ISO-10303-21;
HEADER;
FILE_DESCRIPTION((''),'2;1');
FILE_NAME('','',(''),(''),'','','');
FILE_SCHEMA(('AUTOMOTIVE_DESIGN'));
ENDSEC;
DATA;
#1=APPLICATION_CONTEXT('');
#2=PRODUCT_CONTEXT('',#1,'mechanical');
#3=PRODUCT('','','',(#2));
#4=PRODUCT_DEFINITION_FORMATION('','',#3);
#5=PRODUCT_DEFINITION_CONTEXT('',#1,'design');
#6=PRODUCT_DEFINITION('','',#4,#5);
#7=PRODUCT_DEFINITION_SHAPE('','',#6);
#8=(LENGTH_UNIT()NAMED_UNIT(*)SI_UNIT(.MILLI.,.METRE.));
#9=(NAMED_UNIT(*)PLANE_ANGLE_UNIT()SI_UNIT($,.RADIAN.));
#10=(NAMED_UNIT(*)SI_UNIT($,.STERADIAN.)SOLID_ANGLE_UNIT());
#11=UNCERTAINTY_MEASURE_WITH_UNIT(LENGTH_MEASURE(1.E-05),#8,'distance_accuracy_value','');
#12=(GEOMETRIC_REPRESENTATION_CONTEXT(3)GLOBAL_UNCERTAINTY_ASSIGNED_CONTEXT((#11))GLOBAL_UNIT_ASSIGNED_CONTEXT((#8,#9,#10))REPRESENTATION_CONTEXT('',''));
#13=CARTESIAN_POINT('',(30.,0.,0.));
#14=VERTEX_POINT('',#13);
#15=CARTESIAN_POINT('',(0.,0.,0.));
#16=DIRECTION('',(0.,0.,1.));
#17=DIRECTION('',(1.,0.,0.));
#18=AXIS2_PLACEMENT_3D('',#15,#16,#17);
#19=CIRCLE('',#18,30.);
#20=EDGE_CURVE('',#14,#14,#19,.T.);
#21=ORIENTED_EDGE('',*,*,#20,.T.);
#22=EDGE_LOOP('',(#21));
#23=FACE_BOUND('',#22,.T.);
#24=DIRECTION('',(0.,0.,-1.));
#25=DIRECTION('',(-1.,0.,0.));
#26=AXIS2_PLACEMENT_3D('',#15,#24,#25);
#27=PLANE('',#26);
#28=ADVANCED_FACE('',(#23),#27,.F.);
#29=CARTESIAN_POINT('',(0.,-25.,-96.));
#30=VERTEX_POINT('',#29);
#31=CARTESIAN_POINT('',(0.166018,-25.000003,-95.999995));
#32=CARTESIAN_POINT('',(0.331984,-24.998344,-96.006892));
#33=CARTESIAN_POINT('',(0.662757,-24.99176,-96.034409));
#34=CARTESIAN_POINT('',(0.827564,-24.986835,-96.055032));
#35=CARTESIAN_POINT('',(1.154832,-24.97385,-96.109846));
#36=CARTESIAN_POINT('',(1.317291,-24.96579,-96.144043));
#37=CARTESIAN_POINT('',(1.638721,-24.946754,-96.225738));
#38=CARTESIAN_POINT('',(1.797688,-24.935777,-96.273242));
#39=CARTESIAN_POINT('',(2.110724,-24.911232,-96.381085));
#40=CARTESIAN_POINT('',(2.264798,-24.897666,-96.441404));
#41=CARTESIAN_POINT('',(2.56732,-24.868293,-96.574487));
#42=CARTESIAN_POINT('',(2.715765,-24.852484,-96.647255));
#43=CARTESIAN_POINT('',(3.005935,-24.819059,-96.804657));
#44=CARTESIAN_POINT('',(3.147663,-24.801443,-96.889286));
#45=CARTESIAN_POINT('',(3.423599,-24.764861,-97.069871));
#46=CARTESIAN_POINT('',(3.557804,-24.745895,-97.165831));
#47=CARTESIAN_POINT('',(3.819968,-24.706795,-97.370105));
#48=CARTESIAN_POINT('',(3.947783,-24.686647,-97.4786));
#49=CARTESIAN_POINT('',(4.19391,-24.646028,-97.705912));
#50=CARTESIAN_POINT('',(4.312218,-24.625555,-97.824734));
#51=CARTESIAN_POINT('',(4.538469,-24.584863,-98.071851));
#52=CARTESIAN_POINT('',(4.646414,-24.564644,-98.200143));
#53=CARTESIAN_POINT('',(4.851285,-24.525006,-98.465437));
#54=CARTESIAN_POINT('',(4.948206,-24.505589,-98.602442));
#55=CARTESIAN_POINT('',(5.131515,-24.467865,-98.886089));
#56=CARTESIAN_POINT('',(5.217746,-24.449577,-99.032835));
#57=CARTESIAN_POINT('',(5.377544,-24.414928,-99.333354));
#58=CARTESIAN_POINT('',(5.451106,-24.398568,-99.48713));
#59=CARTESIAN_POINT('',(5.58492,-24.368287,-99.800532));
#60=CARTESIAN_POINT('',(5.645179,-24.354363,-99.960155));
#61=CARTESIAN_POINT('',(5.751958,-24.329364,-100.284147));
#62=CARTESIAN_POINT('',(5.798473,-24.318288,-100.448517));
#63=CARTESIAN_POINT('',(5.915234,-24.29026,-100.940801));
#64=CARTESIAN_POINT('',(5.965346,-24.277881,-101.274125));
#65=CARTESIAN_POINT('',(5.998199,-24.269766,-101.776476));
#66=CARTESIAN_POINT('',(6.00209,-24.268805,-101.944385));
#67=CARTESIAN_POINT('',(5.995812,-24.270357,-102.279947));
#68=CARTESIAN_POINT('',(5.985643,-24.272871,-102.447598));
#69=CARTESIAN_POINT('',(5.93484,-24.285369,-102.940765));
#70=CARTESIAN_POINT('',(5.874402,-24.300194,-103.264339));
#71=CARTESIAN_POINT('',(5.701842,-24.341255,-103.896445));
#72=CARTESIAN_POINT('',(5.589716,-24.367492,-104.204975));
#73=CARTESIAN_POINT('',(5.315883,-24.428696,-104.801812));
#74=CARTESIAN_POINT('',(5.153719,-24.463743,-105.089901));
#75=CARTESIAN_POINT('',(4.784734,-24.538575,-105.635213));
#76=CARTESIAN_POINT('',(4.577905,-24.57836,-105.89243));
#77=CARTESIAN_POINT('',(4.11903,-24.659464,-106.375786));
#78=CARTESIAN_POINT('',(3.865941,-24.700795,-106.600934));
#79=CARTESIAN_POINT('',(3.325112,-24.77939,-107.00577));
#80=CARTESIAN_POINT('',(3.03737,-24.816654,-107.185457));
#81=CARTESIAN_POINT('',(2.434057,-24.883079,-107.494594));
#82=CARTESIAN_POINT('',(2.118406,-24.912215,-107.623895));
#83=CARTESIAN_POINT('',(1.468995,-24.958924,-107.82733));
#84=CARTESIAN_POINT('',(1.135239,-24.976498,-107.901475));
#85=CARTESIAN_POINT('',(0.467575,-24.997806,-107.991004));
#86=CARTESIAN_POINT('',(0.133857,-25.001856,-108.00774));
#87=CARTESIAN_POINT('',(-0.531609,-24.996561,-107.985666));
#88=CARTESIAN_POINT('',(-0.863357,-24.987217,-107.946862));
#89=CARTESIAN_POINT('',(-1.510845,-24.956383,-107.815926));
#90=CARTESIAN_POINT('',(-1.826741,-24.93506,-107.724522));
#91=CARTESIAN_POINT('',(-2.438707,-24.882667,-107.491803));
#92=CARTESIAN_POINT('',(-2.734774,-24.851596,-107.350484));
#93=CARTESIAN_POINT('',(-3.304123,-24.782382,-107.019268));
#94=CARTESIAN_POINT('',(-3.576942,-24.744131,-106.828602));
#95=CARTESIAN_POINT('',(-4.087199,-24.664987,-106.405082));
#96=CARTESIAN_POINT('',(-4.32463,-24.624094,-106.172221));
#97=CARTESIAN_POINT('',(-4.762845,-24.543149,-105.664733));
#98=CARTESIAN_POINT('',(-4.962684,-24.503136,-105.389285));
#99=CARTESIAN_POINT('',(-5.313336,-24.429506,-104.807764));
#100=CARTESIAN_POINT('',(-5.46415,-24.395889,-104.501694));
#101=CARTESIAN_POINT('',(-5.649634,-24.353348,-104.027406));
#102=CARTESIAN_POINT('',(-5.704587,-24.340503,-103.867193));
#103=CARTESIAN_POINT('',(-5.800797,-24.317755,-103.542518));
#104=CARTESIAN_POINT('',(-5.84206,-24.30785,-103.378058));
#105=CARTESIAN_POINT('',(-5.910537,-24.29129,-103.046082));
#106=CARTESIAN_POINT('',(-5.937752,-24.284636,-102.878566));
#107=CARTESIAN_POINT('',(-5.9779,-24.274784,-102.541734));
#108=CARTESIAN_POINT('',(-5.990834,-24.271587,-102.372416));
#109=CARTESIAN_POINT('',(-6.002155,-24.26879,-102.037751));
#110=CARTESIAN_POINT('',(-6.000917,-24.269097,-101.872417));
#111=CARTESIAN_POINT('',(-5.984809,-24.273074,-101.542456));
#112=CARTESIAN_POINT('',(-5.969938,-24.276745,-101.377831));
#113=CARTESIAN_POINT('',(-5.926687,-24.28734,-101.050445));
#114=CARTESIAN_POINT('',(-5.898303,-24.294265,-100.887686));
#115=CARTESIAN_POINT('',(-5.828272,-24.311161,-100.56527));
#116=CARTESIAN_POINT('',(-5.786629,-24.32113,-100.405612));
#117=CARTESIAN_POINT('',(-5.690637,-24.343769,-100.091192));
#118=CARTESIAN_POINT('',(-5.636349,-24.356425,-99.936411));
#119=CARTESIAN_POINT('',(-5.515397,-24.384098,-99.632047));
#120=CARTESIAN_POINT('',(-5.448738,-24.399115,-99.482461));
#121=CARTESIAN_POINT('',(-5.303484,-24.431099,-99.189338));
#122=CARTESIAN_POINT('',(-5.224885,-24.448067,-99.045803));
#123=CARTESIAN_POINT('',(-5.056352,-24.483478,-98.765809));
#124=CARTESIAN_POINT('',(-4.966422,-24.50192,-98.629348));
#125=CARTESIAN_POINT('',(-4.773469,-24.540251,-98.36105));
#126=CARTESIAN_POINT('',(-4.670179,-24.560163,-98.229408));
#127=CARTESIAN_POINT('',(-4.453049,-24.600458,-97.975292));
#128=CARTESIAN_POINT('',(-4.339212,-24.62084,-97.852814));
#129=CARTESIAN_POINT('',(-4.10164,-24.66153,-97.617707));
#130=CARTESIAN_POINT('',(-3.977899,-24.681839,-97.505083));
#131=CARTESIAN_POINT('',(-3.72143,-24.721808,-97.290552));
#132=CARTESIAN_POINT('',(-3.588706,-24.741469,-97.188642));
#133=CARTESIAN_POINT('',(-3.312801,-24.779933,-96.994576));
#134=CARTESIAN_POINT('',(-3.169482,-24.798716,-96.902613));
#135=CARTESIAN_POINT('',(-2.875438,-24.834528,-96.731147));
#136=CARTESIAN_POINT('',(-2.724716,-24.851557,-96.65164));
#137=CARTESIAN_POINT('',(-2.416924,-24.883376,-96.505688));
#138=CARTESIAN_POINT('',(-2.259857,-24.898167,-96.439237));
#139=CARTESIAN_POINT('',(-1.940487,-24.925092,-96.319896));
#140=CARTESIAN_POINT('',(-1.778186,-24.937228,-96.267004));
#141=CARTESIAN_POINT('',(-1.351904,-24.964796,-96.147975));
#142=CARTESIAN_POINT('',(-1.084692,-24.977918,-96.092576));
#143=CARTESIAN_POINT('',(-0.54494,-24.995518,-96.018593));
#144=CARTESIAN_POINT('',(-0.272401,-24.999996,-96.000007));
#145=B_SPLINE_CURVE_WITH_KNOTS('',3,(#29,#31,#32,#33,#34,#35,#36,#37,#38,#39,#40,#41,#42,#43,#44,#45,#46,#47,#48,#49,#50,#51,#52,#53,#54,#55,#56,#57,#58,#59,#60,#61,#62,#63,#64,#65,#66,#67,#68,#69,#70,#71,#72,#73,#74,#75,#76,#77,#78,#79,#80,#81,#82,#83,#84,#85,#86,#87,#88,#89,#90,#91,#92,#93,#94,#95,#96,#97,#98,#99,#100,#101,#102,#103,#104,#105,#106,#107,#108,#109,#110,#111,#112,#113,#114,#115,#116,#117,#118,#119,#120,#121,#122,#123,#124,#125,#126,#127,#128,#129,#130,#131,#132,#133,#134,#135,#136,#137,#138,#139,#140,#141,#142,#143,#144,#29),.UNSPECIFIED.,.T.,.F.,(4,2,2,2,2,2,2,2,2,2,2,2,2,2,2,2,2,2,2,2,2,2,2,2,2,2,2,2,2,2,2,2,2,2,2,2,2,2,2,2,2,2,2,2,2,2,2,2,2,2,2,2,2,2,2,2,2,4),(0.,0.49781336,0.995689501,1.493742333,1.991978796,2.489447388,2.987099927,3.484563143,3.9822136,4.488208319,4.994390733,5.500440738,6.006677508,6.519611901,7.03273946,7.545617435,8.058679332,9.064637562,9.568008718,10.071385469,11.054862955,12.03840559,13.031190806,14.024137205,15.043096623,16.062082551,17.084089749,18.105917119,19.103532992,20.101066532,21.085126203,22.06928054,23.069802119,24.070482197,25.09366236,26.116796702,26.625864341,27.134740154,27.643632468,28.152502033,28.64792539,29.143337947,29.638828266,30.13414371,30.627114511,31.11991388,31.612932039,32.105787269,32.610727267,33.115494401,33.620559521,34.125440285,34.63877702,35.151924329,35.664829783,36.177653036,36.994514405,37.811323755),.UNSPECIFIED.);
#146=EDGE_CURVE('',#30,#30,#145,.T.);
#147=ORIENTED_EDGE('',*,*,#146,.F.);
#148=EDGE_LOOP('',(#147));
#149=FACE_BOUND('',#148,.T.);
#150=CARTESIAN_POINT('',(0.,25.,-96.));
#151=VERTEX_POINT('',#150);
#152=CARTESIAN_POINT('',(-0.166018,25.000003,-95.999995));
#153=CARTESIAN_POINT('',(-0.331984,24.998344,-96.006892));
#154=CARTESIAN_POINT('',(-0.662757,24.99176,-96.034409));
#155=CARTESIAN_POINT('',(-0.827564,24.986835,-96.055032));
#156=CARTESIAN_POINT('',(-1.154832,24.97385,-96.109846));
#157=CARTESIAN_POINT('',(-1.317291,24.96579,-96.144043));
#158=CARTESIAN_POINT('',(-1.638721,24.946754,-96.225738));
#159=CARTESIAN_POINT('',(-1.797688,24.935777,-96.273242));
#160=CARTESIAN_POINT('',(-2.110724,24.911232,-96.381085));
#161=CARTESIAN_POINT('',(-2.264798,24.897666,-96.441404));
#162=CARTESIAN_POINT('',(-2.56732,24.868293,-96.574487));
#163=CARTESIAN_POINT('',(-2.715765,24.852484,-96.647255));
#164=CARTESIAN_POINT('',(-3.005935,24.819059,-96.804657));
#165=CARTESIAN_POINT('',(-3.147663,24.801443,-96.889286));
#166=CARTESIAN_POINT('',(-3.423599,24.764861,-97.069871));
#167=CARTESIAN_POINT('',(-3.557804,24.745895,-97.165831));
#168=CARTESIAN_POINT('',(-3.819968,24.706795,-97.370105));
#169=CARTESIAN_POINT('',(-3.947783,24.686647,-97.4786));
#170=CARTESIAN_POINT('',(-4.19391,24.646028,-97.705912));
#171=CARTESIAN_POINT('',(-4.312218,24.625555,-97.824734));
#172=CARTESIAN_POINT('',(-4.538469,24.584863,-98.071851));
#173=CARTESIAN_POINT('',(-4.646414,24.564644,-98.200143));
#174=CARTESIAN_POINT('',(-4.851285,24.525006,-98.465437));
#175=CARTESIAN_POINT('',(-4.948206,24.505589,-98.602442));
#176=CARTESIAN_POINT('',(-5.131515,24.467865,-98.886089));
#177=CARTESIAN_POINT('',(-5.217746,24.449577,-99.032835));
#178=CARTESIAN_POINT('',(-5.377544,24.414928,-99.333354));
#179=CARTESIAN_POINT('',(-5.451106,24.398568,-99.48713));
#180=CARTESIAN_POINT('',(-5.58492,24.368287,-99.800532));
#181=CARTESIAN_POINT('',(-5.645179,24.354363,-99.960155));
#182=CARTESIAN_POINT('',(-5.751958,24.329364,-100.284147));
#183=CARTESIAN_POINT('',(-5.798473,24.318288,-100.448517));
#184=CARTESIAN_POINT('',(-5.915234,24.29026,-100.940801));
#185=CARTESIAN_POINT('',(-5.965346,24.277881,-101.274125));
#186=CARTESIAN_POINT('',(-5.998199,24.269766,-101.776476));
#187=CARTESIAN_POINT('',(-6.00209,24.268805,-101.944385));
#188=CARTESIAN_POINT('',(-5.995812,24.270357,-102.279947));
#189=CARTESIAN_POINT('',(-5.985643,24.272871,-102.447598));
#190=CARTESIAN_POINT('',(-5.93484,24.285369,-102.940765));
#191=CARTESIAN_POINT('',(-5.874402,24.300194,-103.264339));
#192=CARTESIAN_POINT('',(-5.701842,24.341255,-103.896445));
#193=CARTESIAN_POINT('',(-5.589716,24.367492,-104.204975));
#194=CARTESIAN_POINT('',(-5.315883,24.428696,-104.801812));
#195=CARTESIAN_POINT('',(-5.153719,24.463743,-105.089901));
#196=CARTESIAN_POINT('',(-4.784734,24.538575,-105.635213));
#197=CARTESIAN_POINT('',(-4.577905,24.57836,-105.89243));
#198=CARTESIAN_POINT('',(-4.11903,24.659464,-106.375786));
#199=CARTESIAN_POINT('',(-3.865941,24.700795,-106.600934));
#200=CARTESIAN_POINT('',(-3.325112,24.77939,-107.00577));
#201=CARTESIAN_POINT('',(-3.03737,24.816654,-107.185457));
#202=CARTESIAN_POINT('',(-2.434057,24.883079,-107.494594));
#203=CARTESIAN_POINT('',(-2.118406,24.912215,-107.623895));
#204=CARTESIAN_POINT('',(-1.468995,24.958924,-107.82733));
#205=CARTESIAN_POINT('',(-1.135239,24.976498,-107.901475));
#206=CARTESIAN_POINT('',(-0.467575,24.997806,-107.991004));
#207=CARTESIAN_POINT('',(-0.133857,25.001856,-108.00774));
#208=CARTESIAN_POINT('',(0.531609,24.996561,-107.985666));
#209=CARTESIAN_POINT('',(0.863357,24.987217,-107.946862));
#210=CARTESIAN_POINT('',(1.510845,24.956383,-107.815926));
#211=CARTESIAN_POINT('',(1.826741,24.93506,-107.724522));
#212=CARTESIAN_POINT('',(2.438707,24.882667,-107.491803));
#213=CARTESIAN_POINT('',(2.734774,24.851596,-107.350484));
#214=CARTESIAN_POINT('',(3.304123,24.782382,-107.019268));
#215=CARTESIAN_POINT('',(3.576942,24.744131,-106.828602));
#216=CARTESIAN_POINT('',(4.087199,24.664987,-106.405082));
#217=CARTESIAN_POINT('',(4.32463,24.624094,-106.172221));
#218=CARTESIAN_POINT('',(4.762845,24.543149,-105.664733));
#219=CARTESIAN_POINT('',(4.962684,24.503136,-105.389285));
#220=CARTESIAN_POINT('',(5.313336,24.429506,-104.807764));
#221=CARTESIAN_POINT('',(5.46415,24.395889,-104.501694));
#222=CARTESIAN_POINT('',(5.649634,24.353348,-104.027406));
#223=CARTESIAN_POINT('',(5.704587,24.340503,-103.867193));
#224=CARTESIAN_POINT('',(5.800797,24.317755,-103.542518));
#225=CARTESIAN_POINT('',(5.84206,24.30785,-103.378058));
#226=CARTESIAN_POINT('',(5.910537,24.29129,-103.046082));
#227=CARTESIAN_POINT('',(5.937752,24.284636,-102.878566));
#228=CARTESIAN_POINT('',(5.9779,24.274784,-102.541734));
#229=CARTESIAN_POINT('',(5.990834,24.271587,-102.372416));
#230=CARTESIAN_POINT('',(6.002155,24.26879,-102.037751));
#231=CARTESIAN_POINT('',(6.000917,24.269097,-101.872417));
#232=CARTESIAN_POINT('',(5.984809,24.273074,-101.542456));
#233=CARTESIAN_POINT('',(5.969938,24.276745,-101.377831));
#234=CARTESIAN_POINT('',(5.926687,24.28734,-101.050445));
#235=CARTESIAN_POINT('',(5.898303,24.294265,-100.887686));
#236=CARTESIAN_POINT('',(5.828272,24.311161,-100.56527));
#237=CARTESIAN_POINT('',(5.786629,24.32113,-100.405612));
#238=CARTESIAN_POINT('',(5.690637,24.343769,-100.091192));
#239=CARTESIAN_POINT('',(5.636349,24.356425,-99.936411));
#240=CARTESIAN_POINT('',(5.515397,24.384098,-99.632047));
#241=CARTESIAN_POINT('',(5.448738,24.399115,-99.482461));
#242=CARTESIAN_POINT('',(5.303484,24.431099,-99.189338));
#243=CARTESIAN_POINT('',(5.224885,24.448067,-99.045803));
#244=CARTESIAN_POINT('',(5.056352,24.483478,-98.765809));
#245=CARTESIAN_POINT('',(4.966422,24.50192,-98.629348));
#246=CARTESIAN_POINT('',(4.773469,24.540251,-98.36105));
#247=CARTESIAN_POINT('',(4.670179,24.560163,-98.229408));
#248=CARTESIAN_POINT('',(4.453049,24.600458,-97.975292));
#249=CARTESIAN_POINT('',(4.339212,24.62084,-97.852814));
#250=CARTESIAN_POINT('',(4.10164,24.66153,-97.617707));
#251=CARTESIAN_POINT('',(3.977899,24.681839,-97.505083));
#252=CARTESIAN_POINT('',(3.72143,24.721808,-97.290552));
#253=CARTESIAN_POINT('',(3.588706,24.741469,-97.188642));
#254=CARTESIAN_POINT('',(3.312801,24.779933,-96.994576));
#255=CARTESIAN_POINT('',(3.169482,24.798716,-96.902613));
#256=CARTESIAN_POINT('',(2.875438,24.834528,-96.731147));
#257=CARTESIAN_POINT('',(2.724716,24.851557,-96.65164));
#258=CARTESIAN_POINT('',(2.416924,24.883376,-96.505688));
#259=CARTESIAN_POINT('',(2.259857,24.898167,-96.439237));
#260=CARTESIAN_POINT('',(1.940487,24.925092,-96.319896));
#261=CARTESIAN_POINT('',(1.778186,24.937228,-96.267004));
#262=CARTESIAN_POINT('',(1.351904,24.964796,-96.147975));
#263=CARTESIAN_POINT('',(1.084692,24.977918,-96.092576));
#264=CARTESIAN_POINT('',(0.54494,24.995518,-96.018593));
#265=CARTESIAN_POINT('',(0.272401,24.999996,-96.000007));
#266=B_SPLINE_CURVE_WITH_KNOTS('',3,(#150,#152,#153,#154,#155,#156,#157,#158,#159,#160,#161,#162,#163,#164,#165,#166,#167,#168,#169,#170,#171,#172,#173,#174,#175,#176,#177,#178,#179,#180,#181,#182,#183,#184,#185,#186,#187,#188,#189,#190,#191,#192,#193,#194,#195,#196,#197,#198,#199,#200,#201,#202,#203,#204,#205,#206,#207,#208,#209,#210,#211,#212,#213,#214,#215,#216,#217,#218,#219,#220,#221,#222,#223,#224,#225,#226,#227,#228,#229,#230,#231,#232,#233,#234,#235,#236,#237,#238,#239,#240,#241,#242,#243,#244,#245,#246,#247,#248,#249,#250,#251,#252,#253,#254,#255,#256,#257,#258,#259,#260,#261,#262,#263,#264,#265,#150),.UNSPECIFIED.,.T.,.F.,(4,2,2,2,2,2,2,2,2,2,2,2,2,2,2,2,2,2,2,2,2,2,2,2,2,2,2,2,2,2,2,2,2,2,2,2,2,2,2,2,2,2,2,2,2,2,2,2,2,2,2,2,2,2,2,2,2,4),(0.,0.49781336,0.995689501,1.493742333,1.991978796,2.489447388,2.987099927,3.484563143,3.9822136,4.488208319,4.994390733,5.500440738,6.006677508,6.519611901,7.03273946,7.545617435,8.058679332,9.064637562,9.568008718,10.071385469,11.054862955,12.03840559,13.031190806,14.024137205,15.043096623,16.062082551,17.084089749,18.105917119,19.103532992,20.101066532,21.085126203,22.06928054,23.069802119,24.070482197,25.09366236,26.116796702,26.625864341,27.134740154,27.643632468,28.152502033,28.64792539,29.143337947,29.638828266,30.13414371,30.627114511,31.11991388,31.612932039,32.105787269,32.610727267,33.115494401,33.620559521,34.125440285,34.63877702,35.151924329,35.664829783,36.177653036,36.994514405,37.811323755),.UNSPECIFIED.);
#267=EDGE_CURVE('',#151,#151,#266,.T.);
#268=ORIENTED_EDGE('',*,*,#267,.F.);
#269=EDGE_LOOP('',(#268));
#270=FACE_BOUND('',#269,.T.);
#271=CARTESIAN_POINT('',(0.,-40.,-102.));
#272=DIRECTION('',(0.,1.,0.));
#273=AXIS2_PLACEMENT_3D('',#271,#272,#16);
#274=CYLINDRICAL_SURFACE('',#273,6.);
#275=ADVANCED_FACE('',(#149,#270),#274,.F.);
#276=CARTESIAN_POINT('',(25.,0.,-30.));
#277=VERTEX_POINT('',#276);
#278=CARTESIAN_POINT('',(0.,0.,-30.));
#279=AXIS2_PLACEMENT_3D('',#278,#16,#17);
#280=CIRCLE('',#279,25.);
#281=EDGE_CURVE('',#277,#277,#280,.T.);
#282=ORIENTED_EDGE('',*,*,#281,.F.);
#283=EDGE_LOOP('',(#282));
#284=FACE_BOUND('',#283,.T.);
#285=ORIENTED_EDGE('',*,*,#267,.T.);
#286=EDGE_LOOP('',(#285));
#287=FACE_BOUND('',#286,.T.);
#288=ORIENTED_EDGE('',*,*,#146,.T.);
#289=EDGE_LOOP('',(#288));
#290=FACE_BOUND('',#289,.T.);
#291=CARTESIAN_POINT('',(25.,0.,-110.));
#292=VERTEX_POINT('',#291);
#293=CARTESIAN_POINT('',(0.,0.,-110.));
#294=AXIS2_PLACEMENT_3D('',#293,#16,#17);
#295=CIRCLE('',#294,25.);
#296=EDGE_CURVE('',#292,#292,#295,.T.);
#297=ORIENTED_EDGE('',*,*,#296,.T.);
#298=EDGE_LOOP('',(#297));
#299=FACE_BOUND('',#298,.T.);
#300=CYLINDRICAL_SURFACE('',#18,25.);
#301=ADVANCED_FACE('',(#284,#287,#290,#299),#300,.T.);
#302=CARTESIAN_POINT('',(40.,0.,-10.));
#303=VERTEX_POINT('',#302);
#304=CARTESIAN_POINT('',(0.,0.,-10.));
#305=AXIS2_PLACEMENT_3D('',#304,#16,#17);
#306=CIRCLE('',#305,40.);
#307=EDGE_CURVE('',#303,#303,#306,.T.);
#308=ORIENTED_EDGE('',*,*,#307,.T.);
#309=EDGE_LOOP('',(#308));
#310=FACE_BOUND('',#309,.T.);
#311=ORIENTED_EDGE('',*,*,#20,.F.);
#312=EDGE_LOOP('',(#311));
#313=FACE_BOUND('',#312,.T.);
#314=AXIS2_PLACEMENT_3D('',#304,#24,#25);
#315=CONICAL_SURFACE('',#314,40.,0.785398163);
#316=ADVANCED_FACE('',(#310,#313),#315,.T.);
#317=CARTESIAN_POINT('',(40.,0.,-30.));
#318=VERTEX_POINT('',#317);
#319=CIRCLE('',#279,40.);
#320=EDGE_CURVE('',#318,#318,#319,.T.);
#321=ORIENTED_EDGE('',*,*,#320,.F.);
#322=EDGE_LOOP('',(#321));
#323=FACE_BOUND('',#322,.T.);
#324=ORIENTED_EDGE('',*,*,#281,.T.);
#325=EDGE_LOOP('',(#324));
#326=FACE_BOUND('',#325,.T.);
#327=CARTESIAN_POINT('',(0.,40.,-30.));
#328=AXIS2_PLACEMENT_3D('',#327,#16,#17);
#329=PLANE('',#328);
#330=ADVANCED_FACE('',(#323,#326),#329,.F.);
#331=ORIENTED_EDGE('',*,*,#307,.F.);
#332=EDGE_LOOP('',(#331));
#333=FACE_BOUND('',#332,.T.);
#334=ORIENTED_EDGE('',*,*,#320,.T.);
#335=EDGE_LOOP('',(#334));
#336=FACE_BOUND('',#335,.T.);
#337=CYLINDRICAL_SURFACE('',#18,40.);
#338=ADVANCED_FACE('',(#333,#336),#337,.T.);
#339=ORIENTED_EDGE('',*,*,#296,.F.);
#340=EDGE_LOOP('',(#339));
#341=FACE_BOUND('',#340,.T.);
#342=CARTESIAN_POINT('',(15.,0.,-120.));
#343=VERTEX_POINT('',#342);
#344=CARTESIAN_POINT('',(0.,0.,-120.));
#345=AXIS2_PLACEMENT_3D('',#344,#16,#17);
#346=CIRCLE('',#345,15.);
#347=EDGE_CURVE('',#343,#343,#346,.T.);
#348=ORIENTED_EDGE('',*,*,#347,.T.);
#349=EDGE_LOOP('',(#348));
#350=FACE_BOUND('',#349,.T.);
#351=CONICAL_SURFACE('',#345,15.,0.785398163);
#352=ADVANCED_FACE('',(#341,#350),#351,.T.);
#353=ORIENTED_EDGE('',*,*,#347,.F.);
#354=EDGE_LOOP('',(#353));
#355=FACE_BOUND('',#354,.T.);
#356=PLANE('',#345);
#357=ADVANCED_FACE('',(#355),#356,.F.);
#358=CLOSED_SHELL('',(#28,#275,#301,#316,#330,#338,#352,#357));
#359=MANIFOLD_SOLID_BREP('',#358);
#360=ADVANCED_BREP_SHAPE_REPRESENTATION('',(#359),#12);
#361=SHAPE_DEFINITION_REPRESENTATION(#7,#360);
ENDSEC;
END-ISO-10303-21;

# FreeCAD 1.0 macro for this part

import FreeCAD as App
import Part
import Sketcher

V = App.Vector
Q = App.Units.Quantity


def add_polygon(sketch, points):
    """Adds a closed chain of lines whose ends are joined by coincident constraints."""
    first, n = sketch.GeometryCount, len(points)
    for a, b in zip(points, points[1:] + points[:1]):
        sketch.addGeometry(Part.LineSegment(App.Vector(*a, 0), App.Vector(*b, 0)), False)
    for i in range(n):
        sketch.addConstraint(Sketcher.Constraint("Coincident", first + i, 2, first + (i + 1) % n, 1))

doc = App.newDocument("Part")
body = doc.addObject("PartDesign::Body", "Body")

# Sketch on YZ plane
sketch1 = body.newObject("Sketcher::SketchObject", "Sketch")
sketch1.AttachmentSupport = (doc.getObject("YZ_Plane"), [""])
sketch1.MapMode = "FlatFace"
add_polygon(sketch1, [(0, 0), (0, -120), (15, -120), (25, -110), (25, -30), (40, -30), (40, -10), (30, 0)])  # lines 0-7
sketch1.addConstraint(Sketcher.Constraint("Vertical", 0))
sketch1.addConstraint(Sketcher.Constraint("Horizontal", 1))
sketch1.addConstraint(Sketcher.Constraint("Vertical", 3))
sketch1.addConstraint(Sketcher.Constraint("Horizontal", 4))
sketch1.addConstraint(Sketcher.Constraint("Vertical", 5))
sketch1.addConstraint(Sketcher.Constraint("Horizontal", 7))
sketch1.addConstraint(Sketcher.Constraint("Coincident", 7, 2, -1, 1))
sketch1.addConstraint(Sketcher.Constraint("Perpendicular", 2, 6))
sketch1.addConstraint(Sketcher.Constraint("Equal", 1, 4))
sketch1.addConstraint(Sketcher.Constraint("Equal", 2, 6))
sketch1.addConstraint(Sketcher.Constraint("DistanceX", 1, 1, 1, 2, Q("15 mm")))
sketch1.addConstraint(Sketcher.Constraint("DistanceX", 7, 2, 7, 1, Q("30 mm")))
sketch1.addConstraint(Sketcher.Constraint("DistanceY", 0, 2, 0, 1, Q("120 mm")))
sketch1.addConstraint(Sketcher.Constraint("DistanceY", 3, 1, 3, 2, Q("80 mm")))
sketch1.addConstraint(Sketcher.Constraint("DistanceY", 5, 1, 5, 2, Q("20 mm")))
revolution = body.newObject("PartDesign::Revolution", "Revolution")
revolution.Profile = sketch1
revolution.ReferenceAxis = (sketch1, ["V_Axis"])
revolution.Angle = 360

# Sketch on XZ plane
sketch2 = body.newObject("Sketcher::SketchObject", "Sketch001")
sketch2.AttachmentSupport = (doc.getObject("XZ_Plane"), [""])
sketch2.MapMode = "FlatFace"
sketch2.addGeometry(Part.Circle(V(0, -102, 0), V(0, 0, 1), 6), False)
sketch2.addConstraint(Sketcher.Constraint("PointOnObject", 0, 3, -2))
sketch2.addConstraint(Sketcher.Constraint("Diameter", 0, Q("12 mm")))
sketch2.addConstraint(Sketcher.Constraint("DistanceY", 0, 3, -1, 1, Q("102 mm")))
pocket1 = body.newObject("PartDesign::Pocket", "Pocket")
pocket1.Profile = sketch2
pocket1.Type = "ThroughAll"
pocket1.Midplane = True

doc.recompute()
